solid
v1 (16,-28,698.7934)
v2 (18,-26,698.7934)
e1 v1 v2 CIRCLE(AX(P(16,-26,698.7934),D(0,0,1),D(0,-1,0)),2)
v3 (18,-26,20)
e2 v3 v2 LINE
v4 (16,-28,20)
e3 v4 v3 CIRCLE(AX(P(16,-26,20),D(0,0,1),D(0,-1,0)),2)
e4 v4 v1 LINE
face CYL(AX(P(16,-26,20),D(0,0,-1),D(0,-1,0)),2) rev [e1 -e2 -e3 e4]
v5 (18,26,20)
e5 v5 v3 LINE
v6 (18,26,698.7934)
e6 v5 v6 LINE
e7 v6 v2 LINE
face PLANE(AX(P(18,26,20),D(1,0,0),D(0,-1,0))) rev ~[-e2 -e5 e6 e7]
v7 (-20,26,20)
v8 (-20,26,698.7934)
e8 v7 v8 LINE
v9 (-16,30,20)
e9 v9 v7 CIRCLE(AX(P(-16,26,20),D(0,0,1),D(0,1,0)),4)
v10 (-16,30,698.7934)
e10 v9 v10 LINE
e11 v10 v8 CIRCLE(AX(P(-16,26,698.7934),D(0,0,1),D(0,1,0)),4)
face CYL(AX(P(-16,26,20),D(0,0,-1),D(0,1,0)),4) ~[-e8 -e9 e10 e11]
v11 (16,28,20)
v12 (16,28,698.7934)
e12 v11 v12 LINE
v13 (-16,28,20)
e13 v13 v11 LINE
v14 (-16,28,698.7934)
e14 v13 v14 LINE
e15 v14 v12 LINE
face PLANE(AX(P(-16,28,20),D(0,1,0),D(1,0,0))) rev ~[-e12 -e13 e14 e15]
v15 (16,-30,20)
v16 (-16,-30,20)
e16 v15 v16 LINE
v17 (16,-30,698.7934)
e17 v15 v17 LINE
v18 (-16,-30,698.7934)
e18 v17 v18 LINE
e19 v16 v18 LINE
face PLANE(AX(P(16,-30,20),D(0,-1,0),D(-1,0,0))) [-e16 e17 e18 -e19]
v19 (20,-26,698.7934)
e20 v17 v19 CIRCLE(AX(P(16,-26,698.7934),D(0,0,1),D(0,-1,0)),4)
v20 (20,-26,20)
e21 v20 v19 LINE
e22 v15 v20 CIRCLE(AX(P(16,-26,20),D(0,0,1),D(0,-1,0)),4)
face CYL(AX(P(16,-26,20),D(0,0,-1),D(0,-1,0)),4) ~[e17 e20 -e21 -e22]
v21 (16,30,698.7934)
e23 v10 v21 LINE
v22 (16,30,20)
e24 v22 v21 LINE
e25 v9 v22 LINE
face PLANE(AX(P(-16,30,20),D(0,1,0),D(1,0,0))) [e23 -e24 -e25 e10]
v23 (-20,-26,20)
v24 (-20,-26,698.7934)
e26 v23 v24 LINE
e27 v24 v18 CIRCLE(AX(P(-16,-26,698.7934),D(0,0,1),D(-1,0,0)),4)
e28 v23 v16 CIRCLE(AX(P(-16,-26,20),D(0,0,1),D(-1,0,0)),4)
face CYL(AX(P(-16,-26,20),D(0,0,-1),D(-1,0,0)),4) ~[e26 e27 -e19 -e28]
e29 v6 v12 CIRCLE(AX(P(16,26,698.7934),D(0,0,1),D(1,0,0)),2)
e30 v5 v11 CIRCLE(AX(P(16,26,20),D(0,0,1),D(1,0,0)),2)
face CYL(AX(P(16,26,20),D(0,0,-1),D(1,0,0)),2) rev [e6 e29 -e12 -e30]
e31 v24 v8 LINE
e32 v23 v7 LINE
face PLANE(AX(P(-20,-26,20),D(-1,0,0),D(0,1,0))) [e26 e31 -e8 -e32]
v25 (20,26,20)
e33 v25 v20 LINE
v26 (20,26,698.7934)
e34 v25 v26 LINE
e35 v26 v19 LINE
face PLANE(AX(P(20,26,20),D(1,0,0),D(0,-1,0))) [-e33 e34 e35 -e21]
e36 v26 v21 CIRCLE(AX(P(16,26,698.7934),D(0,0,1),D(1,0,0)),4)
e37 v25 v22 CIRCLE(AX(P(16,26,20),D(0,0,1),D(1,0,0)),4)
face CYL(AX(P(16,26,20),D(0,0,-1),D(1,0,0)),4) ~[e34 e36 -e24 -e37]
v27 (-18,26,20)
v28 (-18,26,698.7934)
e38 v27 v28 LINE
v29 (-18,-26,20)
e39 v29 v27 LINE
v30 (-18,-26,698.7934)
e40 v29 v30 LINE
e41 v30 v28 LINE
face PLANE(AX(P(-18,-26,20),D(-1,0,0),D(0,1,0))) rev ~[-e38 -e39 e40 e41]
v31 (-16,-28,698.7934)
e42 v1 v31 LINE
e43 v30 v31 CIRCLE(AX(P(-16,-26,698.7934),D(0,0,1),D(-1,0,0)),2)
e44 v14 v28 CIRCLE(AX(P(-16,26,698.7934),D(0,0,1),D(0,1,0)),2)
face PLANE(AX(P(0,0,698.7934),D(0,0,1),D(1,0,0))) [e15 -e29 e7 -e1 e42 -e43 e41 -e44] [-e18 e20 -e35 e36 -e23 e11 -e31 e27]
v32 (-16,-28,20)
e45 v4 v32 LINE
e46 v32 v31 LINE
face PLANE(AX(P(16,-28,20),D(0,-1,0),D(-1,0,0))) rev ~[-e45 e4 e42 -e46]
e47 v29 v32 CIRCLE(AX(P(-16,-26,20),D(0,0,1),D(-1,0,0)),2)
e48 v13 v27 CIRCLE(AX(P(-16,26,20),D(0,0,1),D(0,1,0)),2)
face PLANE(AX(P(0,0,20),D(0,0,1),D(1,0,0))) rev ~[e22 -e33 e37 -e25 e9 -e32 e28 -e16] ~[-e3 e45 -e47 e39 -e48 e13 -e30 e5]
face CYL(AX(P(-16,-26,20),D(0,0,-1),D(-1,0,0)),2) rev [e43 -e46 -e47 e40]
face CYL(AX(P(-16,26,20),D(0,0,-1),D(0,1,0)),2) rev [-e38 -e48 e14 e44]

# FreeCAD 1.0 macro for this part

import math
import FreeCAD as App
import Part
import Sketcher
Q = App.Units.Quantity

doc = App.newDocument("Part")
body = doc.addObject("PartDesign::Body", "Body")

# Sketch on XY plane
sketch1 = doc.addObject("Sketcher::SketchObject", "Sketch")
body.addObject(sketch1)
sketch1.AttachmentSupport = (doc.XY_Plane, [""])
sketch1.MapMode = "FlatFace"
sketch1.AttachmentOffset = App.Placement(App.Vector(0, 0, 20), App.Rotation())
sketch1.addGeometry([
    Part.LineSegment(App.Vector(-20, 26, 0), App.Vector(-20, -26, 0)),  # 0
    Part.ArcOfCircle(Part.Circle(App.Vector(-16, -26, 0), App.Vector(0, 0, 1), 4), math.radians(180), math.radians(270)),  # 1
    Part.LineSegment(App.Vector(-16, -30, 0), App.Vector(16, -30, 0)),  # 2
    Part.ArcOfCircle(Part.Circle(App.Vector(16, -26, 0), App.Vector(0, 0, 1), 4), math.radians(-90), math.radians(0)),  # 3
    Part.LineSegment(App.Vector(20, -26, 0), App.Vector(20, 26, 0)),  # 4
    Part.ArcOfCircle(Part.Circle(App.Vector(16, 26, 0), App.Vector(0, 0, 1), 4), math.radians(0), math.radians(90)),  # 5
    Part.LineSegment(App.Vector(16, 30, 0), App.Vector(-16, 30, 0)),  # 6
    Part.ArcOfCircle(Part.Circle(App.Vector(-16, 26, 0), App.Vector(0, 0, 1), 4), math.radians(90), math.radians(180)),  # 7
    Part.ArcOfCircle(Part.Circle(App.Vector(-16, 26, 0), App.Vector(0, 0, 1), 2), math.radians(90), math.radians(180)),  # 8
    Part.LineSegment(App.Vector(-16, 28, 0), App.Vector(16, 28, 0)),  # 9
    Part.ArcOfCircle(Part.Circle(App.Vector(16, 26, 0), App.Vector(0, 0, 1), 2), math.radians(0), math.radians(90)),  # 10
    Part.LineSegment(App.Vector(18, 26, 0), App.Vector(18, -26, 0)),  # 11
    Part.ArcOfCircle(Part.Circle(App.Vector(16, -26, 0), App.Vector(0, 0, 1), 2), math.radians(-90), math.radians(0)),  # 12
    Part.LineSegment(App.Vector(16, -28, 0), App.Vector(-16, -28, 0)),  # 13
    Part.ArcOfCircle(Part.Circle(App.Vector(-16, -26, 0), App.Vector(0, 0, 1), 2), math.radians(180), math.radians(270)),  # 14
    Part.LineSegment(App.Vector(-18, -26, 0), App.Vector(-18, 26, 0)),  # 15
], False)
sketch1.addConstraint([
    Sketcher.Constraint("Tangent", 0, 2, 1, 1),
    Sketcher.Constraint("Tangent", 1, 2, 2, 1),
    Sketcher.Constraint("Tangent", 2, 2, 3, 1),
    Sketcher.Constraint("Tangent", 3, 2, 4, 1),
    Sketcher.Constraint("Tangent", 4, 2, 5, 1),
    Sketcher.Constraint("Tangent", 5, 2, 6, 1),
    Sketcher.Constraint("Tangent", 6, 2, 7, 1),
    Sketcher.Constraint("Tangent", 7, 2, 0, 1),
    Sketcher.Constraint("Tangent", 8, 1, 9, 1),
    Sketcher.Constraint("Tangent", 9, 2, 10, 2),
    Sketcher.Constraint("Tangent", 10, 1, 11, 1),
    Sketcher.Constraint("Tangent", 11, 2, 12, 2),
    Sketcher.Constraint("Tangent", 12, 1, 13, 1),
    Sketcher.Constraint("Tangent", 13, 2, 14, 2),
    Sketcher.Constraint("Tangent", 14, 1, 15, 1),
    Sketcher.Constraint("Tangent", 15, 2, 8, 2),
    Sketcher.Constraint("Vertical", 0),
    Sketcher.Constraint("Horizontal", 2),
    Sketcher.Constraint("Vertical", 4),
    Sketcher.Constraint("Horizontal", 6),
    Sketcher.Constraint("Horizontal", 9),
    Sketcher.Constraint("Vertical", 11),
    Sketcher.Constraint("Horizontal", 13),
    Sketcher.Constraint("Vertical", 15),
    Sketcher.Constraint("Coincident", 8, 3, 7, 3),
    Sketcher.Constraint("Coincident", 10, 3, 5, 3),
    Sketcher.Constraint("Coincident", 12, 3, 3, 3),
    Sketcher.Constraint("Equal", 1, 3),
    Sketcher.Constraint("Equal", 3, 5),
    Sketcher.Constraint("Equal", 5, 7),
    Sketcher.Constraint("Equal", 12, 14),
    Sketcher.Constraint("Symmetric", 1, 3, 5, 3, -1, 1),
    Sketcher.Constraint("Radius", 1, Q("4 mm")),
    Sketcher.Constraint("Radius", 8, Q("2 mm")),
    Sketcher.Constraint("DistanceX", 0, 2, -1, 1, Q("20 mm")),
    Sketcher.Constraint("DistanceY", 1, 2, -1, 1, Q("30 mm")),
])
pad1 = doc.addObject("PartDesign::Pad", "Pad")
body.addObject(pad1)
pad1.Profile = sketch1
pad1.Length = 678.7934

doc.recompute()
